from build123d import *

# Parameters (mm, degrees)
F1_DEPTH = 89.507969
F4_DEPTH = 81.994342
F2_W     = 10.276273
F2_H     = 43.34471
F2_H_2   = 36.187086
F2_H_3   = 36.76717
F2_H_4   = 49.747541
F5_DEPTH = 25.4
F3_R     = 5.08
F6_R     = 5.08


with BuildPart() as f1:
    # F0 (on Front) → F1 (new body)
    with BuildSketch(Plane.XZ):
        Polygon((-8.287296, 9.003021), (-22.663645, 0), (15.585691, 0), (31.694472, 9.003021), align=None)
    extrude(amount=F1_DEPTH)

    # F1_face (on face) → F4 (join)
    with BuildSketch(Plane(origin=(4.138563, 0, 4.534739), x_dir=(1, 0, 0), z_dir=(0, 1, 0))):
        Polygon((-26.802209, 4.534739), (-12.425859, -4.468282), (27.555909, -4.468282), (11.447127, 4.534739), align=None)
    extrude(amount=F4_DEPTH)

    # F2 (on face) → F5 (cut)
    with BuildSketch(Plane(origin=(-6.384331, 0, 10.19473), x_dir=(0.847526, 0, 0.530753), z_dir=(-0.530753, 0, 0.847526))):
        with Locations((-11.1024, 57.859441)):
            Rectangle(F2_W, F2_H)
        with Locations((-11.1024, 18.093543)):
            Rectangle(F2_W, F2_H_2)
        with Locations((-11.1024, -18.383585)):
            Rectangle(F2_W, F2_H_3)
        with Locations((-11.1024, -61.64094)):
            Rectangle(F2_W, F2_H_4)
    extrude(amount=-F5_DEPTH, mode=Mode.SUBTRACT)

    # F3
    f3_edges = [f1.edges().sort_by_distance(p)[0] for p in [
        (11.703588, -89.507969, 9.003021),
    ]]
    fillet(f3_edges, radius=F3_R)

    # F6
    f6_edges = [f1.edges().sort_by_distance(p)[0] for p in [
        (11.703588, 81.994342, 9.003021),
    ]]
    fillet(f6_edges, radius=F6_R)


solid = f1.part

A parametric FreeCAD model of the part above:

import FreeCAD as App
import Part
import Sketcher
Q = App.Units.Quantity


def edges_at(feature, points):
    """Names of the edges that pass closest to the given points."""
    edges = feature.Shape.Edges
    near = lambda p: min(range(len(edges)), key=lambda i: edges[i].distToShape(Part.Vertex(*p))[0])
    return sorted({f"Edge{near(p) + 1}" for p in points})

doc = App.newDocument("Part")
body = doc.addObject("PartDesign::Body", "Body")

# Sketch on XZ plane
sketch1 = body.newObject("Sketcher::SketchObject", "Sketch")
sketch1.AttachmentSupport = (doc.getObject("XZ_Plane"), [""])
sketch1.MapMode = "FlatFace"
sketch1.addGeometry([
    Part.LineSegment(App.Vector(-8, 9, 0), App.Vector(-23, 0, 0)),
    Part.LineSegment(App.Vector(-23, 0, 0), App.Vector(16, 0, 0)),
    Part.LineSegment(App.Vector(16, 0, 0), App.Vector(32, 9, 0)),
    Part.LineSegment(App.Vector(32, 9, 0), App.Vector(-8, 9, 0)),
], False)
sketch1.addConstraint([
    Sketcher.Constraint("Coincident", 0, 2, 1, 1),
    Sketcher.Constraint("Coincident", 1, 2, 2, 1),
    Sketcher.Constraint("Coincident", 2, 2, 3, 1),
    Sketcher.Constraint("Coincident", 3, 2, 0, 1),
    Sketcher.Constraint("Horizontal", 1),
    Sketcher.Constraint("Horizontal", 3),
    Sketcher.Constraint("PointOnObject", 0, 2, -1),
    Sketcher.Constraint("DistanceX", 3, 2, 3, 1, 39.981768),
    Sketcher.Constraint("Distance", 2, 18.453921),
    Sketcher.Constraint("DistanceX", 1, 1, 1, 2, 38.249336),
    Sketcher.Constraint("DistanceX", -1, 1, 1, 2, 15.585691),
    Sketcher.Constraint("DistanceY", -1, 1, 2, 2, 9.003021),
])
pad1 = body.newObject("PartDesign::Pad", "Pad")
pad1.Profile = sketch1
pad1.Length = 89.507969

# Sketch on XZ plane
sketch2 = body.newObject("Sketcher::SketchObject", "Sketch001")
sketch2.AttachmentSupport = (doc.getObject("XZ_Plane"), [""])
sketch2.MapMode = "FlatFace"
sketch2.addGeometry([
    Part.LineSegment(App.Vector(-23, 0, 0), App.Vector(-8, 9, 0)),
    Part.LineSegment(App.Vector(-8, 9, 0), App.Vector(32, 9, 0)),
    Part.LineSegment(App.Vector(32, 9, 0), App.Vector(16, 0, 0)),
    Part.LineSegment(App.Vector(16, 0, 0), App.Vector(-23, 0, 0)),
], False)
sketch2.addConstraint([
    Sketcher.Constraint("Coincident", 0, 2, 1, 1),
    Sketcher.Constraint("Coincident", 1, 2, 2, 1),
    Sketcher.Constraint("Coincident", 2, 2, 3, 1),
    Sketcher.Constraint("Coincident", 3, 2, 0, 1),
    Sketcher.Constraint("Horizontal", 1),
    Sketcher.Constraint("Horizontal", 3),
    Sketcher.Constraint("PointOnObject", 2, 2, -1),
    Sketcher.Constraint("DistanceX", 1, 1, 1, 2, 39.981768),
    Sketcher.Constraint("Distance", 0, 16.962719),
    Sketcher.Constraint("DistanceX", 3, 2, 3, 1, 38.249336),
    Sketcher.Constraint("DistanceY", -1, 1, 0, 2, 9.003021),
    Sketcher.Constraint("DistanceX", -1, 1, 2, 2, 15.58569),
])
pad2 = body.newObject("PartDesign::Pad", "Pad001")
pad2.Profile = sketch2
pad2.Length = 81.994342
pad2.Reversed = True

# Sketch on an angled plane
sketch3 = body.newObject("Sketcher::SketchObject", "Sketch002")
sketch3.Placement = App.Placement(App.Vector(-6.384331, 0, 10.19473), App.Rotation(App.Vector(0.847526395, 0, 0.530753247), App.Vector(0, 0.999999999, 0), App.Vector(-0.530753247, 0, 0.847526395), "ZXY"))
sketch3.addGeometry([
    Part.LineSegment(App.Vector(-6, 80, 0), App.Vector(-16, 80, 0)),
    Part.LineSegment(App.Vector(-16, 80, 0), App.Vector(-16, -87, 0)),
    Part.LineSegment(App.Vector(-16, -87, 0), App.Vector(-6, -87, 0)),
    Part.LineSegment(App.Vector(-6, -87, 0), App.Vector(-6, 80, 0)),
], False)
sketch3.addConstraint([
    Sketcher.Constraint("Coincident", 0, 2, 1, 1),
    Sketcher.Constraint("Coincident", 1, 2, 2, 1),
    Sketcher.Constraint("Coincident", 2, 2, 3, 1),
    Sketcher.Constraint("Coincident", 3, 2, 0, 1),
    Sketcher.Constraint("Horizontal", 0),
    Sketcher.Constraint("Vertical", 1),
    Sketcher.Constraint("Horizontal", 2),
    Sketcher.Constraint("Vertical", 3),
    Sketcher.Constraint("DistanceX", 0, 2, 0, 1, 10.276273),
    Sketcher.Constraint("DistanceY", 1, 2, 1, 1, 166.046506),
    Sketcher.Constraint("DistanceY", 1, 2, -1, 1, 86.51471),
    Sketcher.Constraint("DistanceX", 0, 2, -1, 1, 16.240536),
])
pocket1 = body.newObject("PartDesign::Pocket", "Pocket")
pocket1.Profile = sketch3
pocket1.Length = Q("1 in")
doc.recompute()

fillet = body.newObject("PartDesign::Fillet", "Fillet")
fillet.Base = (pocket1, edges_at(pocket1, [(11.704, -89.508, 9.003)]))
fillet.Radius = Q("0.2 in")
doc.recompute()

fillet2 = body.newObject("PartDesign::Fillet", "Fillet001")
fillet2.Base = (fillet, edges_at(fillet, [(11.704, 81.994, 9.003)]))
fillet2.Radius = Q("0.2 in")

doc.recompute()
